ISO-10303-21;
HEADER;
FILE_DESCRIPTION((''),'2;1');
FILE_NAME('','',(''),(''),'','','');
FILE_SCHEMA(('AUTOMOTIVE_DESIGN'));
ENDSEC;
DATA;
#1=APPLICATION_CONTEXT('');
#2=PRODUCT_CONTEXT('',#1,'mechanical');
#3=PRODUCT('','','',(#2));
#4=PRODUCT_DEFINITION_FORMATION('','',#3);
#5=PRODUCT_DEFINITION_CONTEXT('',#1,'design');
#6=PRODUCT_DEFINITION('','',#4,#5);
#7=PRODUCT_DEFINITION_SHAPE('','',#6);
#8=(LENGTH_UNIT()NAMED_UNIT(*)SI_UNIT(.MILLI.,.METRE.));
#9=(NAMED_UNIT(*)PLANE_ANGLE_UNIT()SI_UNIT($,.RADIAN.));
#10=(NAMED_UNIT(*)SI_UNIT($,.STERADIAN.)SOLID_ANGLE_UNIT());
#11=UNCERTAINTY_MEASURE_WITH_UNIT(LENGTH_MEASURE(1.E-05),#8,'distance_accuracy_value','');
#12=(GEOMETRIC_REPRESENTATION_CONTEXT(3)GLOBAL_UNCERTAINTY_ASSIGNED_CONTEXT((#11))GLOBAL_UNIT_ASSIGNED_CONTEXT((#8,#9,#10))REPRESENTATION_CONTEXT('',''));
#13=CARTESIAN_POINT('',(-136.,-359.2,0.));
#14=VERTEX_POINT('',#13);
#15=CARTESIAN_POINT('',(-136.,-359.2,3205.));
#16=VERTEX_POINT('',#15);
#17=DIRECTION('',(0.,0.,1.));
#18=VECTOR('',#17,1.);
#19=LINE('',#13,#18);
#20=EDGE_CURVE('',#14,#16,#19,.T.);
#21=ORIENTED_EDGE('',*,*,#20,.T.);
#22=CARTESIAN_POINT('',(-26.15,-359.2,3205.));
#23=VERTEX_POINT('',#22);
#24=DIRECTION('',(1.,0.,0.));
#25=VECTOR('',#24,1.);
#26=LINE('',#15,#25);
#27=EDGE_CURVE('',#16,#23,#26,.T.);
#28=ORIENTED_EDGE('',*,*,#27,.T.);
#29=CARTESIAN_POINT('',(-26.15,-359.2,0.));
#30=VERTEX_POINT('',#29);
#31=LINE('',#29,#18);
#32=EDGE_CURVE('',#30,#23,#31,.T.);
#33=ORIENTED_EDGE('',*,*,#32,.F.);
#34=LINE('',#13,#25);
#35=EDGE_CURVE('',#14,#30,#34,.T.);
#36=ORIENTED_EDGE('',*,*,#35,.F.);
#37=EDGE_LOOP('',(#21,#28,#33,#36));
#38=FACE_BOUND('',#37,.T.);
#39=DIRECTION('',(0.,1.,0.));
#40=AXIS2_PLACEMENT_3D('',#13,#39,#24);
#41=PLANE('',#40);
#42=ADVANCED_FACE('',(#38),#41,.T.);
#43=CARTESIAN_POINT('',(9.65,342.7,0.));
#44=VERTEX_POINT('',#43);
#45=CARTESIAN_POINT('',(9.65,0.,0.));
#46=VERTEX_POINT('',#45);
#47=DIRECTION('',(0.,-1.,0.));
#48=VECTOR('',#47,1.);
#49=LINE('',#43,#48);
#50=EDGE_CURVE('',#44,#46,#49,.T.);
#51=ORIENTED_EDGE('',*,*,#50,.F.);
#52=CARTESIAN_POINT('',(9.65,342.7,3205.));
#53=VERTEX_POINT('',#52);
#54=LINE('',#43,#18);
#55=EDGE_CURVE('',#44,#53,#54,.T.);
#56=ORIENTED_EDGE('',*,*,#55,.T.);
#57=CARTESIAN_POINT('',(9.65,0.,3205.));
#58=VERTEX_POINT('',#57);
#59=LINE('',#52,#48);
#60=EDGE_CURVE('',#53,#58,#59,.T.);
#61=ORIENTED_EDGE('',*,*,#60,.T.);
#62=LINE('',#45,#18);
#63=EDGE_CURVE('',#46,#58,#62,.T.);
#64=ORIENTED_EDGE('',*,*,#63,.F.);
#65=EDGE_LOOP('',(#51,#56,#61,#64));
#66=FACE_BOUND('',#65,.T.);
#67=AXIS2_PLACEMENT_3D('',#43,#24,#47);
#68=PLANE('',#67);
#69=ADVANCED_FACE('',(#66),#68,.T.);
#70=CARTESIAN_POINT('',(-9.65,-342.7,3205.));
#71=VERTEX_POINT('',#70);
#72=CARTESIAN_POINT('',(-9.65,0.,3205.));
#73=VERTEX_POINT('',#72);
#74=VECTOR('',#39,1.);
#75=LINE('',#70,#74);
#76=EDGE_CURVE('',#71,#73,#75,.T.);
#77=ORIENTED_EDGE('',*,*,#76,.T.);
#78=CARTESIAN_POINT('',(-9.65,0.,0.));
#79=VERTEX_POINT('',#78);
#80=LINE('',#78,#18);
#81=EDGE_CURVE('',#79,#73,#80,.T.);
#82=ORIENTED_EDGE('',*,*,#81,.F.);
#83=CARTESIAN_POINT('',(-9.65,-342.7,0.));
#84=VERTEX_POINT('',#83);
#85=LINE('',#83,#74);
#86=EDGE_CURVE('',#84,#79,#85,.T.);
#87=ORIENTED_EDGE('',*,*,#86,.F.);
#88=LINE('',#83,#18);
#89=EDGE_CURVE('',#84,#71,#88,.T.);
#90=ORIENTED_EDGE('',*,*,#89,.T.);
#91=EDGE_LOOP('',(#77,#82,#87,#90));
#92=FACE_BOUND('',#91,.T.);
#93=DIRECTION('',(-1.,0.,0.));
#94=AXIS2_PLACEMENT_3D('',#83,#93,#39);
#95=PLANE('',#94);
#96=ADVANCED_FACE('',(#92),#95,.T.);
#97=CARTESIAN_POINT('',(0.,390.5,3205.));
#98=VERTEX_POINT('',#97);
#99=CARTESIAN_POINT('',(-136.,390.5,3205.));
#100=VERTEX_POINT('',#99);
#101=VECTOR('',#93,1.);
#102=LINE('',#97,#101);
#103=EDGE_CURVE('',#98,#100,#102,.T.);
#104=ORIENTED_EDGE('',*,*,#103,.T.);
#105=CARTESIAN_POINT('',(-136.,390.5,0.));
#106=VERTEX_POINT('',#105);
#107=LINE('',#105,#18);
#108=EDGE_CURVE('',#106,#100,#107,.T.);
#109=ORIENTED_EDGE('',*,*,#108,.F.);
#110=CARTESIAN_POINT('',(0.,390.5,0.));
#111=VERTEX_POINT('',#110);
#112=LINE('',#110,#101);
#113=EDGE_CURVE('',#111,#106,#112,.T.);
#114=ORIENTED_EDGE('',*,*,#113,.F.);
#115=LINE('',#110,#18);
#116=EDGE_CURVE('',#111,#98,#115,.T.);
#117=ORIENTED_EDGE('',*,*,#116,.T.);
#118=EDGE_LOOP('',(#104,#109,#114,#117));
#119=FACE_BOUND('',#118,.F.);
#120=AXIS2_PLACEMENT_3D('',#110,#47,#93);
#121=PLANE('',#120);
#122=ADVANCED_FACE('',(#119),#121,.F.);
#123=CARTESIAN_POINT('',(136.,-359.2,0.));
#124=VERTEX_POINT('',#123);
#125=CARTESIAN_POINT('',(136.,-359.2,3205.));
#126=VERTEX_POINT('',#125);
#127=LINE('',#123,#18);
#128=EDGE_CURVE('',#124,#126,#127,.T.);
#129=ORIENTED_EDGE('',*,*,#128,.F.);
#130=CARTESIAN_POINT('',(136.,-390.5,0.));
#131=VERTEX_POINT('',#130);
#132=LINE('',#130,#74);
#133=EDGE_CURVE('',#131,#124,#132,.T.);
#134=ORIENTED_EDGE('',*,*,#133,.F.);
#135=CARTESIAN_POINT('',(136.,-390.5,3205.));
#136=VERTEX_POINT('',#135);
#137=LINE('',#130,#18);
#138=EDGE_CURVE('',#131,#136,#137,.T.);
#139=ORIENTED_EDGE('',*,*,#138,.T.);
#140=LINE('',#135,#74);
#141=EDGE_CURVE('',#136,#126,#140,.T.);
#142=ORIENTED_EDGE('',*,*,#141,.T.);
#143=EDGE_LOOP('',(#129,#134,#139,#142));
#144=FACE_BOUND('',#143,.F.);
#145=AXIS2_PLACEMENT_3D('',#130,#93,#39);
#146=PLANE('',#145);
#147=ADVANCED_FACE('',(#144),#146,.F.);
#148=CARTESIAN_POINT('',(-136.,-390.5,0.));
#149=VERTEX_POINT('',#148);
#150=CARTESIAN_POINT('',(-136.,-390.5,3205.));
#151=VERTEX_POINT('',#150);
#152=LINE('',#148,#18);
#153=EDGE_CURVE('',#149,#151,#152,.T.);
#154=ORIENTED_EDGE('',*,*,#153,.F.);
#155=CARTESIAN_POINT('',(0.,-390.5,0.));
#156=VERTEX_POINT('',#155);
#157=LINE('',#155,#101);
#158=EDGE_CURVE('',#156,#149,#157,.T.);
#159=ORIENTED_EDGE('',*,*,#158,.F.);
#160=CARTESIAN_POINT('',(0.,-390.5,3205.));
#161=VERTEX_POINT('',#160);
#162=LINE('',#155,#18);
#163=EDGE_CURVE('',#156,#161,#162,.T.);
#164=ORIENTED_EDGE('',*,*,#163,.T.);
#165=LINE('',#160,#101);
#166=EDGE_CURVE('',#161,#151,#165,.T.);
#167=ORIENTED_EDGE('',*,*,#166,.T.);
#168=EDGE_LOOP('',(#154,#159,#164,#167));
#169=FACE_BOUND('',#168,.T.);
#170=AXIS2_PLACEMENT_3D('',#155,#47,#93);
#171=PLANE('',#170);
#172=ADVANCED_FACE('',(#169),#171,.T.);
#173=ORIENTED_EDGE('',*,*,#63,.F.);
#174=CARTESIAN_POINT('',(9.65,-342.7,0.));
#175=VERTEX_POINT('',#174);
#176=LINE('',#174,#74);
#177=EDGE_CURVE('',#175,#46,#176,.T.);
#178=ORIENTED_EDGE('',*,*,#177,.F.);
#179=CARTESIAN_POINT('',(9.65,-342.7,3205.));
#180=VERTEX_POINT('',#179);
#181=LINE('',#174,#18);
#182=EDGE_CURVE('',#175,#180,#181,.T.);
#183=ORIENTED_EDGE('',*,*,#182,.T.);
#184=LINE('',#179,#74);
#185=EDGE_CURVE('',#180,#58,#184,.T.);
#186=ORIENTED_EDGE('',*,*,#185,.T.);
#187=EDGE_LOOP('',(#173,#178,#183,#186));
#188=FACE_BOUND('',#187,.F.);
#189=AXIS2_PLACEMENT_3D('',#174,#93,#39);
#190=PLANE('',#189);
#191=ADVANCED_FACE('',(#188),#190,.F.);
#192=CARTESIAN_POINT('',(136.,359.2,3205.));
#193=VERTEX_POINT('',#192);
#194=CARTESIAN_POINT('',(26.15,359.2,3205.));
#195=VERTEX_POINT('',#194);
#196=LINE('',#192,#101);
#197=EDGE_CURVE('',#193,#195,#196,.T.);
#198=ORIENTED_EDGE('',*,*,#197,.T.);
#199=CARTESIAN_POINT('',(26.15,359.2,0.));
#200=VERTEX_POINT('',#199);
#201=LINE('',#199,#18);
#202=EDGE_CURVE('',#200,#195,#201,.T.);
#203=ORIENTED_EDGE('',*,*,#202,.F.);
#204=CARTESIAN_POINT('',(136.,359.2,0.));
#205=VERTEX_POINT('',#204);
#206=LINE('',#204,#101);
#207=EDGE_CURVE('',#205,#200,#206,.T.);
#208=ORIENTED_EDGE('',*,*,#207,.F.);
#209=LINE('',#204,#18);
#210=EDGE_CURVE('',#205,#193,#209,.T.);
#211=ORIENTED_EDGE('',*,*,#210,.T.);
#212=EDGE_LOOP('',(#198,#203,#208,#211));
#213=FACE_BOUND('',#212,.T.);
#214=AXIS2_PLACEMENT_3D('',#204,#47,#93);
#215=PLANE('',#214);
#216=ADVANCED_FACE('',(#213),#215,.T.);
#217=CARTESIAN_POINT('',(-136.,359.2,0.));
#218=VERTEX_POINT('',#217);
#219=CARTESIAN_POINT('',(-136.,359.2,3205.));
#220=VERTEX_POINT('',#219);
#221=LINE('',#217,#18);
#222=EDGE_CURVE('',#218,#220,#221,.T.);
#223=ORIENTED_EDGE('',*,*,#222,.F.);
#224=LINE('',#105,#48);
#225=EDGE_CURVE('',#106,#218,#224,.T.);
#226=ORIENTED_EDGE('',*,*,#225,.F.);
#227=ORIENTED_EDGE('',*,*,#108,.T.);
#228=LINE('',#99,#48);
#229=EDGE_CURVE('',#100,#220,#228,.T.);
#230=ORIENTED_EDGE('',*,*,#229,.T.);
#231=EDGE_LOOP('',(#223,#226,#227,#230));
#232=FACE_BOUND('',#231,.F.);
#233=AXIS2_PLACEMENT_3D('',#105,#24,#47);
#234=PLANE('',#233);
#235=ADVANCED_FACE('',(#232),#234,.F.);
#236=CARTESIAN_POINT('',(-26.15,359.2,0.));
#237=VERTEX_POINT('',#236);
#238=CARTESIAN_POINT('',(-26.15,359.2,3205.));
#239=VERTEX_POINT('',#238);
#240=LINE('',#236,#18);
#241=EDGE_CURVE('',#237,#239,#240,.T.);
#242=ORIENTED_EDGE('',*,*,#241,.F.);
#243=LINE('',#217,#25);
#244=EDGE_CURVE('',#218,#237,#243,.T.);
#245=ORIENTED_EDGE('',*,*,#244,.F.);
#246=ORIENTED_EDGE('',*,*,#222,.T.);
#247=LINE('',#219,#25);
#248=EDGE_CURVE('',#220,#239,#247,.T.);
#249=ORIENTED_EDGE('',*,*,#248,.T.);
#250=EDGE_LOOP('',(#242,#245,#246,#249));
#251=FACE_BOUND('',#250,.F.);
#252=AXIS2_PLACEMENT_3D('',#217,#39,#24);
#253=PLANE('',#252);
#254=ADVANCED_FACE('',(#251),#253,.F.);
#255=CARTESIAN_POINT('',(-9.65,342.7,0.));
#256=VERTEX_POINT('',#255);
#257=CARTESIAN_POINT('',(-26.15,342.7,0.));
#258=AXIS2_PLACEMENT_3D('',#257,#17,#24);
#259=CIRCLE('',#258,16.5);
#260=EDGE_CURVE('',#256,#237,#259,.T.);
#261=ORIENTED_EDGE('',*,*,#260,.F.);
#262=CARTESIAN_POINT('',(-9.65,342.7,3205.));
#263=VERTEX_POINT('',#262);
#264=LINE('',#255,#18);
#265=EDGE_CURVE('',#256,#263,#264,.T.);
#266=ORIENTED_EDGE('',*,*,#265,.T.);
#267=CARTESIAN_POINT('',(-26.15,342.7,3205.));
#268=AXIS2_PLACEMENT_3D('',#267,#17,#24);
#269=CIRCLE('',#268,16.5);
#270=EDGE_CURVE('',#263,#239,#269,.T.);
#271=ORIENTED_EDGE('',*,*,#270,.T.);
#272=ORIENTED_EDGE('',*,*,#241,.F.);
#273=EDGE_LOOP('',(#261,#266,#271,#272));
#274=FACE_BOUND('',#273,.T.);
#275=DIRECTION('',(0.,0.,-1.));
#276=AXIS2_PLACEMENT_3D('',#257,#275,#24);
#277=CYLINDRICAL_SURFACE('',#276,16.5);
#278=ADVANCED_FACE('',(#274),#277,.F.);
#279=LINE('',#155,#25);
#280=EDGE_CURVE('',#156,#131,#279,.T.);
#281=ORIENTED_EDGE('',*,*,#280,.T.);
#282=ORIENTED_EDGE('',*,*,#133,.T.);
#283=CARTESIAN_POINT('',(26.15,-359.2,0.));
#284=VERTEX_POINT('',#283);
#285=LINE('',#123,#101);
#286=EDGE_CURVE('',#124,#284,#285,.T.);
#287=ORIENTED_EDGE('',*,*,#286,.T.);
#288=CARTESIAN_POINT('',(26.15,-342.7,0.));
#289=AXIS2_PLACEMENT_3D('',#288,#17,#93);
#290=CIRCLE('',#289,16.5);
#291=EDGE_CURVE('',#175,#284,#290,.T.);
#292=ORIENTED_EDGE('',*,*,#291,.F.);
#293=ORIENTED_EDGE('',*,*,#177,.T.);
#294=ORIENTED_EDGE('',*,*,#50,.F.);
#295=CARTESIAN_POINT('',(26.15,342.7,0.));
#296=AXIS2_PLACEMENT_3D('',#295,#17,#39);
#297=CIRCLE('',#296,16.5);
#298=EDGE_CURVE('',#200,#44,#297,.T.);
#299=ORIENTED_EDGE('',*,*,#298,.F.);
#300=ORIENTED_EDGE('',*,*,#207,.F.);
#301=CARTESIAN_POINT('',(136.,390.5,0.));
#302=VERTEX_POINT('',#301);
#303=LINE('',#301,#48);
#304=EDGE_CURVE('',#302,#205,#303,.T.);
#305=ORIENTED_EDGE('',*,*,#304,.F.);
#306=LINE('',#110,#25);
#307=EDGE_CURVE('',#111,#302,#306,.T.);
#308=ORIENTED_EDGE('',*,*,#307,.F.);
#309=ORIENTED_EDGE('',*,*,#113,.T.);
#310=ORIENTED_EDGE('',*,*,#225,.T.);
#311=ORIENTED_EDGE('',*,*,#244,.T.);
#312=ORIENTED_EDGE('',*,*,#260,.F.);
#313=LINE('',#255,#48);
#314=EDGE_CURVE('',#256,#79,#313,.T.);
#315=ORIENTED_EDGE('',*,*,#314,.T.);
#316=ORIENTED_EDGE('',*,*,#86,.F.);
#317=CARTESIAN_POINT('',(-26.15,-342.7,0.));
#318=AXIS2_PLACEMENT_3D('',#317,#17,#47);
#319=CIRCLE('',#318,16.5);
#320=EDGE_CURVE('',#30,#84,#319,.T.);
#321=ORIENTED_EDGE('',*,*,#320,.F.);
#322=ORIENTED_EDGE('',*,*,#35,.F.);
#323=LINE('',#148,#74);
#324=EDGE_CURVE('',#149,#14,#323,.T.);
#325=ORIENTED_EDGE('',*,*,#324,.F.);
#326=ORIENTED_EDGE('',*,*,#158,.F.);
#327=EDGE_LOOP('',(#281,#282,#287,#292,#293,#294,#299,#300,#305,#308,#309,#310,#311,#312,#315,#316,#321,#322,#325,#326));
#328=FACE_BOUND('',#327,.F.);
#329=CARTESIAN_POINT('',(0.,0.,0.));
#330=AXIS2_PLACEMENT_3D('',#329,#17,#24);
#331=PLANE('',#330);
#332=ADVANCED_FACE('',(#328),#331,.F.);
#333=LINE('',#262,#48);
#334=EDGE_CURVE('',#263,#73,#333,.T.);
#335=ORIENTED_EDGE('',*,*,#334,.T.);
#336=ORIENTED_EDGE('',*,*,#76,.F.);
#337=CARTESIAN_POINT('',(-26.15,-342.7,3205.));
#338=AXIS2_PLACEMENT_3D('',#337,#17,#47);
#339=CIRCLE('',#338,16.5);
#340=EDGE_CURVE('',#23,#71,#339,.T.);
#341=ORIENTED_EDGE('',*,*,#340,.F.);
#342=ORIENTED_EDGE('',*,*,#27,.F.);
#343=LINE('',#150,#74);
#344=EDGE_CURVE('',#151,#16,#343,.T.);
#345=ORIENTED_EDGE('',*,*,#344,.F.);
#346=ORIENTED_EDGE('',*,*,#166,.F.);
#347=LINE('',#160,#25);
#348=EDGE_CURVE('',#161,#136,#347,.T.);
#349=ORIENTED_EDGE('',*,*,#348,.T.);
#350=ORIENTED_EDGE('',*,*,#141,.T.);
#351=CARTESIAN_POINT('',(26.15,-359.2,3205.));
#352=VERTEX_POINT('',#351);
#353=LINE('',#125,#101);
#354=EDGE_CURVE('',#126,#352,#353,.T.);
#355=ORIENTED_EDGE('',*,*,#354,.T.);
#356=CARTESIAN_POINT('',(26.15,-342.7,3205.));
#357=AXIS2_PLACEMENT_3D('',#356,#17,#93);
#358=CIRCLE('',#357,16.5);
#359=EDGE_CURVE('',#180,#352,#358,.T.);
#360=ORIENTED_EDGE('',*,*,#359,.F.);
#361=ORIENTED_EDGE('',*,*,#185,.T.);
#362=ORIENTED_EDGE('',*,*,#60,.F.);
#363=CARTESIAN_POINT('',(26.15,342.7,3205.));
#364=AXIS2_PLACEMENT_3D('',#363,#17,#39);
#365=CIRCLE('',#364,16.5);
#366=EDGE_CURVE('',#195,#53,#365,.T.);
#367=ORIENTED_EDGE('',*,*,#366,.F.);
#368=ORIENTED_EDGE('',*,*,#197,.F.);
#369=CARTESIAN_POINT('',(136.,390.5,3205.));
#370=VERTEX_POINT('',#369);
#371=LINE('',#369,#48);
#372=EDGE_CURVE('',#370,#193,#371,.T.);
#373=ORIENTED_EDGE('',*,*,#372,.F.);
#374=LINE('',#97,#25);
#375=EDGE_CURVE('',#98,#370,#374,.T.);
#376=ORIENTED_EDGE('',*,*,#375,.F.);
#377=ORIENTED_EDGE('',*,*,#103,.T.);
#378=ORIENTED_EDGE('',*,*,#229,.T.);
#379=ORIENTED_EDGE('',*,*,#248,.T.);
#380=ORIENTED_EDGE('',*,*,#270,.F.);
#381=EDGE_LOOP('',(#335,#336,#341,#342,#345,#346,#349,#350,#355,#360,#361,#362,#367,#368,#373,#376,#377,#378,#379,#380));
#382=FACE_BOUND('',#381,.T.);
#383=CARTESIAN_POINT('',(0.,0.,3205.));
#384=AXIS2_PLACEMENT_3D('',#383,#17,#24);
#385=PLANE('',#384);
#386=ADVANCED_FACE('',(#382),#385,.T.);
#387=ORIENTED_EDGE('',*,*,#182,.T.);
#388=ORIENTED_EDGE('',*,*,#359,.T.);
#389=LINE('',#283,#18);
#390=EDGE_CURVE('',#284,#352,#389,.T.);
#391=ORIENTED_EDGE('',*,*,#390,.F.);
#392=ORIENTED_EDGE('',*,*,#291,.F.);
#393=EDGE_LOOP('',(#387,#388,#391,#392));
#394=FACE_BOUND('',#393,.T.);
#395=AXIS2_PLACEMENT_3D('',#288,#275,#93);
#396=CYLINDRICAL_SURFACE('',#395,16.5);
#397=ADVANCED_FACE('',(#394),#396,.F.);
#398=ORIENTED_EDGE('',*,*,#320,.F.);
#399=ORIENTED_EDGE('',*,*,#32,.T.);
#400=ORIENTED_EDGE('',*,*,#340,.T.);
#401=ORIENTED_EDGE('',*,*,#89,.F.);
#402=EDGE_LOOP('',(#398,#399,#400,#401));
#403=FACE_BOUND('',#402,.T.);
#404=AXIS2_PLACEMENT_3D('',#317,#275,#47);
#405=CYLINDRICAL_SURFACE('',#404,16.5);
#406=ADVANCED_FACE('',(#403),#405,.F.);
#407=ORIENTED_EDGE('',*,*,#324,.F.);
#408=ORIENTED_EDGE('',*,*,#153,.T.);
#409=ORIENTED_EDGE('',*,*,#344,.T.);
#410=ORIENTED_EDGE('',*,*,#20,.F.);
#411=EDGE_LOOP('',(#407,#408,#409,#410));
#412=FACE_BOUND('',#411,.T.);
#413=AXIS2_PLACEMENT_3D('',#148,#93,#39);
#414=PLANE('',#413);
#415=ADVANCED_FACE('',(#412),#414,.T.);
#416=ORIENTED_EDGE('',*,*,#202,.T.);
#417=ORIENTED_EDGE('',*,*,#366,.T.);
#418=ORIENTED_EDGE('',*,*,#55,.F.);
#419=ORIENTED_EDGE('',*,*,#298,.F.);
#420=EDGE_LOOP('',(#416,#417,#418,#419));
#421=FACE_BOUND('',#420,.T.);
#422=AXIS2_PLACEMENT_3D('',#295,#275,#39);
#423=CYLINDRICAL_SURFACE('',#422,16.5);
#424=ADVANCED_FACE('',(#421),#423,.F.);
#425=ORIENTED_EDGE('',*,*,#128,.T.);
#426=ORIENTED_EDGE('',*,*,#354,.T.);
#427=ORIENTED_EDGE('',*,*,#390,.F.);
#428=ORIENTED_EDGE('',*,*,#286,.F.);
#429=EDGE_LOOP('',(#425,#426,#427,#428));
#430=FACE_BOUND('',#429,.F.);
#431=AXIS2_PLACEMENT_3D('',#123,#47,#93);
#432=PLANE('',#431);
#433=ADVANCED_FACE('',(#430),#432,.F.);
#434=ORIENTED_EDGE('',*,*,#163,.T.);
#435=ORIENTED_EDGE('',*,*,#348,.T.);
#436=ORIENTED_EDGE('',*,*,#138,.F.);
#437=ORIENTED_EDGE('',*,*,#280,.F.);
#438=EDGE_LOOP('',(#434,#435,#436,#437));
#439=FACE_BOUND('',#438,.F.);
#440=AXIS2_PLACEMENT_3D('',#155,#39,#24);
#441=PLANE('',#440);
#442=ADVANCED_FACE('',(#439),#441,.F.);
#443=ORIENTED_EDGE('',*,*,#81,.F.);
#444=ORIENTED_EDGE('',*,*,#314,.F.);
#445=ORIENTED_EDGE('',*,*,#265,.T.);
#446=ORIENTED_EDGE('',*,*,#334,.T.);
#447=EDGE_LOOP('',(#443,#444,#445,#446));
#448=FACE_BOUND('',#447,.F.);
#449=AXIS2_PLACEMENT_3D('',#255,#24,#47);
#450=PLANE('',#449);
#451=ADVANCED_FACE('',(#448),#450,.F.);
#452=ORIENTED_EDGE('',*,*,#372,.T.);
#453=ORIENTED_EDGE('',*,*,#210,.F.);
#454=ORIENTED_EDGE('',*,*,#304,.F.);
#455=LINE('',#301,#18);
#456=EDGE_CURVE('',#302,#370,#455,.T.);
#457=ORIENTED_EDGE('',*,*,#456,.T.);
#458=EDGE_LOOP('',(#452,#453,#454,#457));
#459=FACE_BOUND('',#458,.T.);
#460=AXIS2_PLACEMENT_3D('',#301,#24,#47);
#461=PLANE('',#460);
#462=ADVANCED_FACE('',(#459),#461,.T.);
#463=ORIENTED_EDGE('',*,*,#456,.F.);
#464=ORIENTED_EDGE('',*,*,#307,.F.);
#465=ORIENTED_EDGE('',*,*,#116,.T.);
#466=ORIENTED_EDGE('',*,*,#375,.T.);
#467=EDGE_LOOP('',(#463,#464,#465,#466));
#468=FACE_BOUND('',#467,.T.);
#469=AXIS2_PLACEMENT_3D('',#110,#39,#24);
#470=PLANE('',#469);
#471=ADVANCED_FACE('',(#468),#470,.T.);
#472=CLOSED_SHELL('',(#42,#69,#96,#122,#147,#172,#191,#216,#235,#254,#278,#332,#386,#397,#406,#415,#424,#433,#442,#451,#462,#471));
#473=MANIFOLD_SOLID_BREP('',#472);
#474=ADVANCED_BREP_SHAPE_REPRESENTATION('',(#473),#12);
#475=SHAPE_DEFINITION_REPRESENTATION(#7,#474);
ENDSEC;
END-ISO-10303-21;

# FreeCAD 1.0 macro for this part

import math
import FreeCAD as App
import Part
import Sketcher

V = App.Vector

doc = App.newDocument("Part")
body = doc.addObject("PartDesign::Body", "Body")

sketch1 = body.newObject("Sketcher::SketchObject", "Sketch")
sketch1.AttachmentSupport = (doc.getObject("XY_Plane"), [""])
sketch1.MapMode = "FlatFace"
sketch1.addGeometry(Part.LineSegment(V(-136, -359, 0), V(-136, -390, 0)), False)
sketch1.addGeometry(Part.LineSegment(V(-136, -390, 0), V(136, -390, 0)), False)
sketch1.addGeometry(Part.LineSegment(V(136, -390, 0), V(136, -359, 0)), False)
sketch1.addGeometry(Part.LineSegment(V(136, -359, 0), V(26, -359, 0)), False)
sketch1.addGeometry(Part.ArcOfCircle(Part.Circle(V(26, -343, 0), V(0, 0, 1), 16), math.radians(180), math.radians(270)), False)
sketch1.addGeometry(Part.LineSegment(V(10, -343, 0), V(10, 343, 0)), False)
sketch1.addGeometry(Part.ArcOfCircle(Part.Circle(V(26, 343, 0), V(0, 0, 1), 16), math.radians(90), math.radians(180)), False)
sketch1.addGeometry(Part.LineSegment(V(26, 359, 0), V(136, 359, 0)), False)
sketch1.addGeometry(Part.LineSegment(V(136, 359, 0), V(136, 390, 0)), False)
sketch1.addGeometry(Part.LineSegment(V(136, 390, 0), V(-136, 390, 0)), False)
sketch1.addGeometry(Part.LineSegment(V(-136, 390, 0), V(-136, 359, 0)), False)
sketch1.addGeometry(Part.LineSegment(V(-136, 359, 0), V(-26, 359, 0)), False)
sketch1.addGeometry(Part.ArcOfCircle(Part.Circle(V(-26, 343, 0), V(0, 0, 1), 16), math.radians(0), math.radians(90)), False)
sketch1.addGeometry(Part.LineSegment(V(-10, 343, 0), V(-10, -343, 0)), False)
sketch1.addGeometry(Part.ArcOfCircle(Part.Circle(V(-26, -343, 0), V(0, 0, 1), 16), math.radians(-90), math.radians(0)), False)
sketch1.addGeometry(Part.LineSegment(V(-26, -359, 0), V(-136, -359, 0)), False)
sketch1.addConstraint(Sketcher.Constraint("Coincident", 0, 2, 1, 1))
sketch1.addConstraint(Sketcher.Constraint("Coincident", 1, 2, 2, 1))
sketch1.addConstraint(Sketcher.Constraint("Coincident", 2, 2, 3, 1))
sketch1.addConstraint(Sketcher.Constraint("Tangent", 3, 2, 4, 2))
sketch1.addConstraint(Sketcher.Constraint("Tangent", 4, 1, 5, 1))
sketch1.addConstraint(Sketcher.Constraint("Tangent", 5, 2, 6, 2))
sketch1.addConstraint(Sketcher.Constraint("Tangent", 6, 1, 7, 1))
sketch1.addConstraint(Sketcher.Constraint("Coincident", 7, 2, 8, 1))
sketch1.addConstraint(Sketcher.Constraint("Coincident", 8, 2, 9, 1))
sketch1.addConstraint(Sketcher.Constraint("Coincident", 9, 2, 10, 1))
sketch1.addConstraint(Sketcher.Constraint("Coincident", 10, 2, 11, 1))
sketch1.addConstraint(Sketcher.Constraint("Tangent", 11, 2, 12, 2))
sketch1.addConstraint(Sketcher.Constraint("Tangent", 12, 1, 13, 1))
sketch1.addConstraint(Sketcher.Constraint("Tangent", 13, 2, 14, 2))
sketch1.addConstraint(Sketcher.Constraint("Tangent", 14, 1, 15, 1))
sketch1.addConstraint(Sketcher.Constraint("Coincident", 15, 2, 0, 1))
sketch1.addConstraint(Sketcher.Constraint("Vertical", 0))
sketch1.addConstraint(Sketcher.Constraint("Horizontal", 1))
sketch1.addConstraint(Sketcher.Constraint("Vertical", 2))
sketch1.addConstraint(Sketcher.Constraint("Horizontal", 3))
sketch1.addConstraint(Sketcher.Constraint("Vertical", 5))
sketch1.addConstraint(Sketcher.Constraint("Horizontal", 7))
sketch1.addConstraint(Sketcher.Constraint("Vertical", 8))
sketch1.addConstraint(Sketcher.Constraint("Horizontal", 9))
sketch1.addConstraint(Sketcher.Constraint("Vertical", 10))
sketch1.addConstraint(Sketcher.Constraint("Horizontal", 11))
sketch1.addConstraint(Sketcher.Constraint("Vertical", 13))
sketch1.addConstraint(Sketcher.Constraint("Horizontal", 15))
sketch1.addConstraint(Sketcher.Constraint("Equal", 4, 6))
sketch1.addConstraint(Sketcher.Constraint("Equal", 6, 12))
sketch1.addConstraint(Sketcher.Constraint("Equal", 12, 14))
sketch1.addConstraint(Sketcher.Constraint("Symmetric", 4, 3, 12, 3, -1, 1))
sketch1.addConstraint(Sketcher.Constraint("Symmetric", 0, 2, 8, 2, -1, 1))
sketch1.addConstraint(Sketcher.Constraint("Symmetric", 7, 2, 10, 2, -2))
sketch1.addConstraint(Sketcher.Constraint("Symmetric", 2, 2, 15, 2, -2))
sketch1.addConstraint(Sketcher.Constraint("Radius", 4, 16.5))
sketch1.addConstraint(Sketcher.Constraint("DistanceY", 0, 2, 0, 1, 31.3))
sketch1.addConstraint(Sketcher.Constraint("DistanceX", 0, 2, -1, 1, 136.0))
sketch1.addConstraint(Sketcher.Constraint("DistanceY", 0, 2, -1, 1, 390.5))
sketch1.addConstraint(Sketcher.Constraint("DistanceX", -1, 1, 4, 1, 9.65))
pad1 = body.newObject("PartDesign::Pad", "Pad")
pad1.Profile = sketch1
pad1.Length = 3205

doc.recompute()
